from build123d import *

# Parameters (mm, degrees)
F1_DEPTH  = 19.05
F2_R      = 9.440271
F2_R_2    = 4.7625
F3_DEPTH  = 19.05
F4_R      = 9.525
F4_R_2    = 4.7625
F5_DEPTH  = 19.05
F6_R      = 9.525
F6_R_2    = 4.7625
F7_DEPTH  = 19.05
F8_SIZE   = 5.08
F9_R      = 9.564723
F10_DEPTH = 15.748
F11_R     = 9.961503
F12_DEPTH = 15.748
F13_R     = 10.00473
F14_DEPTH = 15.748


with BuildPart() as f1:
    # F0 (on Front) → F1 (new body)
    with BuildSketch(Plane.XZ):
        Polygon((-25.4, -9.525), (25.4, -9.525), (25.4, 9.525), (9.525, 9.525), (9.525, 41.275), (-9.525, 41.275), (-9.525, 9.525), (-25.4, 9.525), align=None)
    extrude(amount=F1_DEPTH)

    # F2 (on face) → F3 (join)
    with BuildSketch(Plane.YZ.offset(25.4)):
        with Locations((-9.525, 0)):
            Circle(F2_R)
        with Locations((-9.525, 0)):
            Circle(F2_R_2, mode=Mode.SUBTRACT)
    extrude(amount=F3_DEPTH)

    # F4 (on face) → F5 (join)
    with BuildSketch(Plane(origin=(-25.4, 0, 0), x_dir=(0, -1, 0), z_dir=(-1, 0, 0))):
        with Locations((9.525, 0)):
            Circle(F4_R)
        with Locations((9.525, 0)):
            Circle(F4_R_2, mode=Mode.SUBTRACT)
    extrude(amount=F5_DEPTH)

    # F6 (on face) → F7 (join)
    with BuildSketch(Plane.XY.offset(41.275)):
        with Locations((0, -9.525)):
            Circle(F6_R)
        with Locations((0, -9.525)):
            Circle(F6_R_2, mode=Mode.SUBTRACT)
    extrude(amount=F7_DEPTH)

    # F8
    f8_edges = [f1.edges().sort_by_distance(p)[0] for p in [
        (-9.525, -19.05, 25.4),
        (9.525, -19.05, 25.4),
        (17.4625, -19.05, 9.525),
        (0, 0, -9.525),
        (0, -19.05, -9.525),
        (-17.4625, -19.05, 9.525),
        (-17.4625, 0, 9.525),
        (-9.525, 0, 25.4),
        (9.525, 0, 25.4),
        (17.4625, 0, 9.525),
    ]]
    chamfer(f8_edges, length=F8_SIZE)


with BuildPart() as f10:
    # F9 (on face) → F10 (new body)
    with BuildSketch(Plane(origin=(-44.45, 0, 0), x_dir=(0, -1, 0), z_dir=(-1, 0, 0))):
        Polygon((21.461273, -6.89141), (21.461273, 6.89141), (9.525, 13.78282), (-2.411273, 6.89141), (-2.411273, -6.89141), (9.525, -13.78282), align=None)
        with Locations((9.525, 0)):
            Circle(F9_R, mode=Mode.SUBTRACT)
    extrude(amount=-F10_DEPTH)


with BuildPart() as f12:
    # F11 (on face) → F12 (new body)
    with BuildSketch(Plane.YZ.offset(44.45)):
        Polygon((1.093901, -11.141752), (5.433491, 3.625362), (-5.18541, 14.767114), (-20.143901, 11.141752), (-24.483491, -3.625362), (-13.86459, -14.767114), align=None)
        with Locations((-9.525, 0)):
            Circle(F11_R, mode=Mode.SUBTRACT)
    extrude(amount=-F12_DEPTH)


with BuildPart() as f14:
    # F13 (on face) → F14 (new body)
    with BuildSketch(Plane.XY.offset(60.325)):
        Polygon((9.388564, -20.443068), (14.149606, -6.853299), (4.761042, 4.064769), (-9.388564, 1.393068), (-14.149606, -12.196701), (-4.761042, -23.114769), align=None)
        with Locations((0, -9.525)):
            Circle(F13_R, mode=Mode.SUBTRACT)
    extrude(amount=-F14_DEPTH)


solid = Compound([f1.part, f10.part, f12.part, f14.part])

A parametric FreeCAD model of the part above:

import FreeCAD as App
import Part
import Sketcher

V = App.Vector
Q = App.Units.Quantity


def edges_at(feature, points):
    """Names of the edges that pass closest to the given points."""
    edges = feature.Shape.Edges
    near = lambda p: min(range(len(edges)), key=lambda i: edges[i].distToShape(Part.Vertex(*p))[0])
    return sorted({f"Edge{near(p) + 1}" for p in points})


def add_polygon(sketch, points):
    """Adds a closed chain of lines whose ends are joined by coincident constraints."""
    first, n = sketch.GeometryCount, len(points)
    for a, b in zip(points, points[1:] + points[:1]):
        sketch.addGeometry(Part.LineSegment(App.Vector(*a, 0), App.Vector(*b, 0)), False)
    for i in range(n):
        sketch.addConstraint(Sketcher.Constraint("Coincident", first + i, 2, first + (i + 1) % n, 1))

doc = App.newDocument("Part")
body = doc.addObject("PartDesign::Body", "Body")

# Sketch on XZ plane
sketch1 = doc.addObject("Sketcher::SketchObject", "Sketch")
body.addObject(sketch1)
sketch1.AttachmentSupport = (doc.XZ_Plane, [""])
sketch1.MapMode = "FlatFace"
add_polygon(sketch1, [(-25, -10), (25, -10), (25, 10), (10, 10), (10, 41), (-10, 41), (-10, 10), (-25, 10)])  # lines 0-7
sketch1.addConstraint([
    Sketcher.Constraint("Horizontal", 0),
    Sketcher.Constraint("Vertical", 1),
    Sketcher.Constraint("Horizontal", 2),
    Sketcher.Constraint("Vertical", 3),
    Sketcher.Constraint("Horizontal", 4),
    Sketcher.Constraint("Vertical", 5),
    Sketcher.Constraint("Horizontal", 6),
    Sketcher.Constraint("Vertical", 7),
    Sketcher.Constraint("Symmetric", 0, 2, 6, 2, -1, 1),
    Sketcher.Constraint("Symmetric", 2, 2, 5, 2, -2),
    Sketcher.Constraint("Equal", 4, 1),
    Sketcher.Constraint("DistanceX", 0, 1, 0, 2, Q("2 in")),
    Sketcher.Constraint("DistanceY", 0, 2, 3, 2, Q("2 in")),
    Sketcher.Constraint("DistanceX", 4, 2, 4, 1, Q("0.75 in")),
])
pad1 = doc.addObject("PartDesign::Pad", "Pad")
body.addObject(pad1)
pad1.Profile = sketch1
pad1.Length = Q("0.75 in")

# Sketch on YZ plane
sketch2 = doc.addObject("Sketcher::SketchObject", "Sketch001")
body.addObject(sketch2)
sketch2.AttachmentSupport = (doc.YZ_Plane, [""])
sketch2.MapMode = "FlatFace"
sketch2.AttachmentOffset = App.Placement(V(0, 0, 1 * 25.4), App.Rotation())
sketch2.addGeometry([
    Part.Circle(V(-9.5, 0, 0), V(0, 0, 1), 9.4),
    Part.Circle(V(-9.5, 0, 0), V(0, 0, 1), 4.8),
], False)
sketch2.addConstraint([
    Sketcher.Constraint("Coincident", 1, 3, 0, 3),
    Sketcher.Constraint("PointOnObject", 0, 3, -1),
    Sketcher.Constraint("Diameter", 1, Q("0.375 in")),
    Sketcher.Constraint("Diameter", 0, Q("18.880542 mm")),
    Sketcher.Constraint("DistanceX", 0, 3, -1, 1, Q("0.375 in")),
])
pad2 = doc.addObject("PartDesign::Pad", "Pad001")
body.addObject(pad2)
pad2.Profile = sketch2
pad2.Length = Q("0.75 in")

# Sketch on YZ plane
sketch3 = doc.addObject("Sketcher::SketchObject", "Sketch002")
body.addObject(sketch3)
sketch3.AttachmentSupport = (doc.YZ_Plane, [""])
sketch3.MapMode = "FlatFace"
sketch3.AttachmentOffset = App.Placement(V(0, 0, -1 * 25.4), App.Rotation())
sketch3.addGeometry([
    Part.Circle(V(-9.5, 0, 0), V(0, 0, 1), 9.5),
    Part.Circle(V(-9.5, 0, 0), V(0, 0, 1), 4.8),
], False)
sketch3.addConstraint([
    Sketcher.Constraint("Coincident", 1, 3, 0, 3),
    Sketcher.Constraint("PointOnObject", 0, 3, -1),
    Sketcher.Constraint("Diameter", 0, Q("0.75 in")),
    Sketcher.Constraint("Diameter", 1, Q("0.375 in")),
    Sketcher.Constraint("DistanceX", 0, 3, -1, 1, Q("0.375 in")),
])
pad3 = doc.addObject("PartDesign::Pad", "Pad002")
body.addObject(pad3)
pad3.Profile = sketch3
pad3.Length = Q("0.75 in")
pad3.Reversed = True

# Sketch on XY plane
sketch4 = doc.addObject("Sketcher::SketchObject", "Sketch003")
body.addObject(sketch4)
sketch4.AttachmentSupport = (doc.XY_Plane, [""])
sketch4.MapMode = "FlatFace"
sketch4.AttachmentOffset = App.Placement(V(0, 0, 1.625 * 25.4), App.Rotation())
sketch4.addGeometry([
    Part.Circle(V(0, -9.5, 0), V(0, 0, 1), 9.5),
    Part.Circle(V(0, -9.5, 0), V(0, 0, 1), 4.8),
], False)
sketch4.addConstraint([
    Sketcher.Constraint("Coincident", 1, 3, 0, 3),
    Sketcher.Constraint("PointOnObject", 0, 3, -2),
    Sketcher.Constraint("Diameter", 0, Q("0.75 in")),
    Sketcher.Constraint("Diameter", 1, Q("0.375 in")),
    Sketcher.Constraint("DistanceY", 0, 3, -1, 1, Q("0.375 in")),
])
pad4 = doc.addObject("PartDesign::Pad", "Pad003")
body.addObject(pad4)
pad4.Profile = sketch4
pad4.Length = Q("0.75 in")
doc.recompute()

chamfer = doc.addObject("PartDesign::Chamfer", "Chamfer")
body.addObject(chamfer)
chamfer.Base = (pad4, edges_at(pad4, [
    (-9.525, -19.05, 25.4),
    (9.525, -19.05, 25.4),
    (17.462, -19.05, 9.525),
    (0, 0, -9.525),
    (0, -19.05, -9.525),
    (-17.462, -19.05, 9.525),
    (-17.462, 0, 9.525),
    (-9.525, 0, 25.4),
    (9.525, 0, 25.4),
    (17.462, 0, 9.525),
]))
chamfer.Size = Q("0.2 in")
body2 = doc.addObject("PartDesign::Body", "Body001")

# Sketch on YZ plane
sketch5 = doc.addObject("Sketcher::SketchObject", "Sketch004")
body2.addObject(sketch5)
sketch5.AttachmentSupport = (doc.getObject("YZ_Plane001"), [""])
sketch5.MapMode = "FlatFace"
sketch5.AttachmentOffset = App.Placement(V(0, 0, -1.75 * 25.4), App.Rotation())
add_polygon(sketch5, [(-21, -7), (-21, 7), (-10, 14), (2, 7), (2, -7), (-10, -14)])  # lines 0-5
sketch5.addGeometry(Part.Circle(V(-10, 0, 0), V(0, 0, 1), 10), False)  # 6
sketch5.addConstraint([
    Sketcher.Constraint("Vertical", 0),
    Sketcher.Constraint("Vertical", 3),
    Sketcher.Constraint("Symmetric", 1, 2, 4, 2, -1),
    Sketcher.Constraint("PointOnObject", 6, 3, -1),
    Sketcher.Constraint("Parallel", 1, 4),
    Sketcher.Constraint("Parallel", 2, 5),
    Sketcher.Constraint("Horizontal", 0, 2, 2, 2),
    Sketcher.Constraint("Horizontal", 3, 2, 5, 2),
    Sketcher.Constraint("Vertical", 6, 3, 1, 2),
    Sketcher.Constraint("Angle", 1, Q("29.999998 deg")),
    Sketcher.Constraint("DistanceX", 6, 3, -1, 1, Q("0.375 in")),
    Sketcher.Constraint("Diameter", 6, Q("19.129446 mm")),
    Sketcher.Constraint("DistanceY", 0, 1, 0, 2, Q("13.78282 mm")),
    Sketcher.Constraint("Distance", 1, Q("13.782821 mm")),
])
pad5 = doc.addObject("PartDesign::Pad", "Pad004")
body2.addObject(pad5)
pad5.Profile = sketch5
pad5.Length = Q("0.62 in")
body3 = doc.addObject("PartDesign::Body", "Body002")

# Sketch on YZ plane
sketch6 = doc.addObject("Sketcher::SketchObject", "Sketch005")
body3.addObject(sketch6)
sketch6.AttachmentSupport = (doc.getObject("YZ_Plane002"), [""])
sketch6.MapMode = "FlatFace"
sketch6.AttachmentOffset = App.Placement(V(0, 0, 1.75 * 25.4), App.Rotation())
add_polygon(sketch6, [(1, -11), (5, 4), (-5, 15), (-20, 11), (-24, -4), (-14, -15)])  # lines 0-5
sketch6.addGeometry(Part.Circle(V(-10, 0, 0), V(0, 0, 1), 10), False)  # 6
sketch6.addConstraint([
    Sketcher.Constraint("PointOnObject", 6, 3, -1),
    Sketcher.Constraint("Parallel", 0, 3),
    Sketcher.Constraint("Parallel", 1, 4),
    Sketcher.Constraint("Parallel", 2, 5),
    Sketcher.Constraint("Equal", 0, 1),
    Sketcher.Constraint("Equal", 1, 2),
    Sketcher.Constraint("Equal", 2, 3),
    Sketcher.Constraint("DistanceX", 6, 3, -1, 1, Q("0.375 in")),
    Sketcher.Constraint("Diameter", 6, Q("19.923006 mm")),
    Sketcher.Constraint("DistanceX", 4, 2, 1, 2, Q("0.3417 in")),
    Sketcher.Constraint("DistanceX", 2, 2, -1, 1, Q("20.143901 mm")),
    Sketcher.Constraint("DistanceX", -1, 1, 5, 2, Q("1.093901 mm")),
    Sketcher.Constraint("DistanceX", 1, 2, 0, 2, Q("10.618901 mm")),
    Sketcher.Constraint("DistanceY", -1, 1, 0, 2, Q("3.625362 mm")),
    Sketcher.Constraint("DistanceY", 3, 2, -1, 1, Q("3.625362 mm")),
])
pad6 = doc.addObject("PartDesign::Pad", "Pad005")
body3.addObject(pad6)
pad6.Profile = sketch6
pad6.Length = Q("0.62 in")
pad6.Reversed = True
body4 = doc.addObject("PartDesign::Body", "Body003")

# Sketch on XY plane
sketch7 = doc.addObject("Sketcher::SketchObject", "Sketch006")
body4.addObject(sketch7)
sketch7.AttachmentSupport = (doc.getObject("XY_Plane003"), [""])
sketch7.MapMode = "FlatFace"
sketch7.AttachmentOffset = App.Placement(V(0, 0, 2.375 * 25.4), App.Rotation())
add_polygon(sketch7, [(9, -20), (14, -7), (5, 4), (-9, 1), (-14, -12), (-5, -23)])  # lines 0-5
sketch7.addGeometry(Part.Circle(V(0, -10, 0), V(0, 0, 1), 10), False)  # 6
sketch7.addConstraint([
    Sketcher.Constraint("PointOnObject", 6, 3, -2),
    Sketcher.Constraint("Parallel", 0, 3),
    Sketcher.Constraint("Parallel", 1, 4),
    Sketcher.Constraint("Parallel", 2, 5),
    Sketcher.Constraint("Equal", 0, 1),
    Sketcher.Constraint("Equal", 1, 2),
    Sketcher.Constraint("Equal", 2, 3),
    Sketcher.Constraint("Diameter", 6, Q("20.00946 mm")),
    Sketcher.Constraint("DistanceY", 6, 3, -1, 1, Q("0.375 in")),
    Sketcher.Constraint("DistanceY", 0, 2, -1, 1, Q("6.853299 mm")),
    Sketcher.Constraint("DistanceY", 3, 2, -1, 1, Q("12.196701 mm")),
    Sketcher.Constraint("DistanceY", 2, 2, 1, 2, Q("2.671701 mm")),
    Sketcher.Constraint("Distance", 0, Q("14.39963 mm")),
    Sketcher.Constraint("DistanceX", -1, 1, 1, 2, Q("4.761042 mm")),
    Sketcher.Constraint("DistanceY", -1, 1, 1, 2, Q("4.064769 mm")),
])
pad7 = doc.addObject("PartDesign::Pad", "Pad006")
body4.addObject(pad7)
pad7.Profile = sketch7
pad7.Length = Q("0.62 in")
pad7.Reversed = True

doc.recompute()
